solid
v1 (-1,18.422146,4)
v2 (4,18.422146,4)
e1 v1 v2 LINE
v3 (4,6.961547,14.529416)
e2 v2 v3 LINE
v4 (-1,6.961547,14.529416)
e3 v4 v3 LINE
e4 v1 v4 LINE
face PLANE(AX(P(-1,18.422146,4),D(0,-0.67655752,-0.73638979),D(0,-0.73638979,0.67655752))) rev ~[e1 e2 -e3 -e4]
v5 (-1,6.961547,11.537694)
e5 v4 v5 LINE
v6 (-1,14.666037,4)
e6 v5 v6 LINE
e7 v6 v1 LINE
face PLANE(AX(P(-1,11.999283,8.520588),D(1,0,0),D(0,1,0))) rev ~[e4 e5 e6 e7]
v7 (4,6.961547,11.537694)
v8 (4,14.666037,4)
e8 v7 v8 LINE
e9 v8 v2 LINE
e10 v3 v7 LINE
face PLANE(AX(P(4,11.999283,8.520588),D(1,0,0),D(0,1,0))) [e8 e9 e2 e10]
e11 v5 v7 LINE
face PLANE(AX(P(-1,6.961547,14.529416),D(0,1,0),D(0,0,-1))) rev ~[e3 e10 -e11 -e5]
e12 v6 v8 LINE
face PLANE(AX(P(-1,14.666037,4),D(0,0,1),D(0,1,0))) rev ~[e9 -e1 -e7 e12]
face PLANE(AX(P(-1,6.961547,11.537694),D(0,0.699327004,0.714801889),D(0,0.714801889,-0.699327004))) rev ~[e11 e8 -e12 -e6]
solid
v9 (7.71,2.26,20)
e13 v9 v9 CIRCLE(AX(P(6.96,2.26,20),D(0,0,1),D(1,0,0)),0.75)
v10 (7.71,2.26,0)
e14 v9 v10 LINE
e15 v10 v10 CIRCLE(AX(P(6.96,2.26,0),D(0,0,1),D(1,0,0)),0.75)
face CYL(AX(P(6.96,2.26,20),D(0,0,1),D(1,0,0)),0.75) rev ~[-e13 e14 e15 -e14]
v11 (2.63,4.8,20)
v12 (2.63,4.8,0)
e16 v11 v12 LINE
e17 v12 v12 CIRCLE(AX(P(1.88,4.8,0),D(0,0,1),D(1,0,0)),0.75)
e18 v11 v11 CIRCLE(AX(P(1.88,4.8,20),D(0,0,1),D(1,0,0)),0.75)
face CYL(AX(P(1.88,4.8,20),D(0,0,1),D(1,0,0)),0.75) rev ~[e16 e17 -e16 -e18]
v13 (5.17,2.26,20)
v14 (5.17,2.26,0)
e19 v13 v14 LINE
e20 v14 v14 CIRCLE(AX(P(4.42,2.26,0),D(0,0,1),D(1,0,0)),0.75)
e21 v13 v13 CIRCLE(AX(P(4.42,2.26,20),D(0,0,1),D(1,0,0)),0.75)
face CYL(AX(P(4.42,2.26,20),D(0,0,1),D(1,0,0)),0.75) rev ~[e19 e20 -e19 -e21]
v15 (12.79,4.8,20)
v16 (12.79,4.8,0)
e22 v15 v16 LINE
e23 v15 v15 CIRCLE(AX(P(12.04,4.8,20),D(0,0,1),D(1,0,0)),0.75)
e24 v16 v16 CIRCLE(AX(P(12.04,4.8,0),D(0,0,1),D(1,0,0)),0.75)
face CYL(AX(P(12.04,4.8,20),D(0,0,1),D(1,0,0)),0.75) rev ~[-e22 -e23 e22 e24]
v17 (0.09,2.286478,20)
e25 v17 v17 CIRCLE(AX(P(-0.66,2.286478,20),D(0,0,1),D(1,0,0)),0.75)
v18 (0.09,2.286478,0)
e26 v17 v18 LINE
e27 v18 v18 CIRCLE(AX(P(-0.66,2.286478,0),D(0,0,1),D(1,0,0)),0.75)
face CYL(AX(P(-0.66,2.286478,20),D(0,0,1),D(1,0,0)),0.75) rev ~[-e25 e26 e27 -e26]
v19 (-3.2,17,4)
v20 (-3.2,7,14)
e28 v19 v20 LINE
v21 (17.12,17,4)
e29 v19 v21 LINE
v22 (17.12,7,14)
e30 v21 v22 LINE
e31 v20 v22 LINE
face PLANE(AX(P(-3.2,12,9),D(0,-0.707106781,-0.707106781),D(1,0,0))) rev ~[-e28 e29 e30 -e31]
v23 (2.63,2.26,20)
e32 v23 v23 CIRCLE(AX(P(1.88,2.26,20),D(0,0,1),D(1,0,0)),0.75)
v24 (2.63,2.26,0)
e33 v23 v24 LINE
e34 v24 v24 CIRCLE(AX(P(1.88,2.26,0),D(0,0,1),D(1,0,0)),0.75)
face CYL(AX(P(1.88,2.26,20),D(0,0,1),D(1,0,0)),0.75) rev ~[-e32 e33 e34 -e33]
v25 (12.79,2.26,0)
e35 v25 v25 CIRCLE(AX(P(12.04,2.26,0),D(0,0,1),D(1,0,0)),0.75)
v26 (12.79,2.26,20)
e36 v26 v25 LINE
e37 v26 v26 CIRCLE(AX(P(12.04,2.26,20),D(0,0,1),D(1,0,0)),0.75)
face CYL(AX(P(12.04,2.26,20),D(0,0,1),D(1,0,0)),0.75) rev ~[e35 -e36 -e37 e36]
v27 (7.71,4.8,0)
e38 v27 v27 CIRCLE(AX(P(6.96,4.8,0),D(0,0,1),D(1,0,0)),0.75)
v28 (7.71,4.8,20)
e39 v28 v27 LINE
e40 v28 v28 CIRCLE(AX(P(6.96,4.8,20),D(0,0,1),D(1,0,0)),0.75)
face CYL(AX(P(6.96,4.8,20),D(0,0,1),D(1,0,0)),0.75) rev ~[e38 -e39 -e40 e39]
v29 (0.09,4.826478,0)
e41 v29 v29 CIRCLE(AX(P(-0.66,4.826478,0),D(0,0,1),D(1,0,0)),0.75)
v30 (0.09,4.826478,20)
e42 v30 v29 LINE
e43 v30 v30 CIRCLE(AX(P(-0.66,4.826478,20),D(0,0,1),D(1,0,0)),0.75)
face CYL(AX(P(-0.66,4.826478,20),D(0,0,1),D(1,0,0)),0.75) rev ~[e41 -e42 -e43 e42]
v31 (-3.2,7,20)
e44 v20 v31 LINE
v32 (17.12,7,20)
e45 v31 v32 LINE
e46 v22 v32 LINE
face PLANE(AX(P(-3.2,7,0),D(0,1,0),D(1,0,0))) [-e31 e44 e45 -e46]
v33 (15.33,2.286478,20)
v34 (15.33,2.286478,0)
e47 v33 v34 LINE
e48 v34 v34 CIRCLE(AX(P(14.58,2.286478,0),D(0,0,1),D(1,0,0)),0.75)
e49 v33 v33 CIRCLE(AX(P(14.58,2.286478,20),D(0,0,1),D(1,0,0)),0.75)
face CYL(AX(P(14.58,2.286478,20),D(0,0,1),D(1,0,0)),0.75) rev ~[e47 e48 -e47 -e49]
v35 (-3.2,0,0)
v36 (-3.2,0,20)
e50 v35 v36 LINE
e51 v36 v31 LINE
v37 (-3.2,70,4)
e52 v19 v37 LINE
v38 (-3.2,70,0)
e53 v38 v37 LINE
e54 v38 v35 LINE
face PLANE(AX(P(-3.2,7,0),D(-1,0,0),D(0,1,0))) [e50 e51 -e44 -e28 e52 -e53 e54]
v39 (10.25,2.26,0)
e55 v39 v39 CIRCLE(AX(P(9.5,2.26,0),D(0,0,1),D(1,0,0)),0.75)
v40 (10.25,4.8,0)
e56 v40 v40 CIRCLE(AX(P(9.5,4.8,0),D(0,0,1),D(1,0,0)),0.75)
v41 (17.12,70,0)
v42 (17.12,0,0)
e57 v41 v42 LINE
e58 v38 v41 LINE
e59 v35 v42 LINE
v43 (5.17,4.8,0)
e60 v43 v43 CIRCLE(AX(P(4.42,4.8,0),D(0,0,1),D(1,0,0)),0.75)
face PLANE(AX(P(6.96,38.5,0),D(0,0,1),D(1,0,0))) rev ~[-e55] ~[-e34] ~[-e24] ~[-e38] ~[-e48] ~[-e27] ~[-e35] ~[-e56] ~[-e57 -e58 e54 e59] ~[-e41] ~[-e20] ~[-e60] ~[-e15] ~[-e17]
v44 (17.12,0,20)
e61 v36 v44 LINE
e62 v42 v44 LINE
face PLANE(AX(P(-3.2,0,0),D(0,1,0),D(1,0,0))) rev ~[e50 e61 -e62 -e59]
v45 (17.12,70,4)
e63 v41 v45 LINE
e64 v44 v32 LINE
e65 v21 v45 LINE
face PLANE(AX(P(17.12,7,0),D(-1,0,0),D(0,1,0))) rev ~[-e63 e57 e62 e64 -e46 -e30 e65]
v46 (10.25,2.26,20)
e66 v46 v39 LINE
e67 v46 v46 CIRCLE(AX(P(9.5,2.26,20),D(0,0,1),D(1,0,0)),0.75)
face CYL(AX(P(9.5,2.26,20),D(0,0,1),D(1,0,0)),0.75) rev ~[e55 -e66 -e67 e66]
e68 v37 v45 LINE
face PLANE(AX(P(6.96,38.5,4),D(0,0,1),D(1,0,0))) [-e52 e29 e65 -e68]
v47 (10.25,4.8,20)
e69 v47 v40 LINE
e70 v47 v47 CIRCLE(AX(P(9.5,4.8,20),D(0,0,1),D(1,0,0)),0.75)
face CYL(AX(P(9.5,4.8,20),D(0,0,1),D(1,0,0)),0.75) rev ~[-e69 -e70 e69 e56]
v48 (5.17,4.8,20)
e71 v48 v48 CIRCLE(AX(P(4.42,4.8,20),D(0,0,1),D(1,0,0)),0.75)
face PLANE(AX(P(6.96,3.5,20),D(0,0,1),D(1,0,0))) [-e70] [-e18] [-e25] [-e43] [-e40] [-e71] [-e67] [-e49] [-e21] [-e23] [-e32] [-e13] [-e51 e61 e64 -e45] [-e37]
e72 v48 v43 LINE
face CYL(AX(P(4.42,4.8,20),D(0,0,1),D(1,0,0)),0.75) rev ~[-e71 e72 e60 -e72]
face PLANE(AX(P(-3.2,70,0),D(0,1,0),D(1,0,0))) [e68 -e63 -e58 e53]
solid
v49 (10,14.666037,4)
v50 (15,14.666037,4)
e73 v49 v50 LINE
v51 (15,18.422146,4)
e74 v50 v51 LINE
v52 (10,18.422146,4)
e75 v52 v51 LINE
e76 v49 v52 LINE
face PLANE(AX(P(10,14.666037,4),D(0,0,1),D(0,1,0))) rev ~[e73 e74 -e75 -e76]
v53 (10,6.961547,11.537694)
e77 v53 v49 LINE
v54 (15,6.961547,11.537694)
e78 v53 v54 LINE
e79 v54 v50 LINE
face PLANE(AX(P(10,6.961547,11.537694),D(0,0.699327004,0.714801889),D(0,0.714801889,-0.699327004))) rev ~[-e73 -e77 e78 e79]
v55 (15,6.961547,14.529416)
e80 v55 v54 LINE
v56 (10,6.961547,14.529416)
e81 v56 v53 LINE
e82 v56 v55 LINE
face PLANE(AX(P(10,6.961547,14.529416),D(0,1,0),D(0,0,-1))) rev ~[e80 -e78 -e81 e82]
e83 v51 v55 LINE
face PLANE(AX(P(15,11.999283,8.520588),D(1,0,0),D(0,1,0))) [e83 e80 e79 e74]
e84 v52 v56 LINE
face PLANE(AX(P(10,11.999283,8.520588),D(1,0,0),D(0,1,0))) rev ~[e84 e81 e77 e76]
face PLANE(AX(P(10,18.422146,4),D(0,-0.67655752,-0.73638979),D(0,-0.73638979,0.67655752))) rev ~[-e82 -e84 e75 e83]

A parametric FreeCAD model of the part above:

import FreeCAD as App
import Part
import Sketcher
from FreeCAD import Vector
Q = App.Units.Quantity


def edges_at(feature, points):
    """Names of the edges that pass closest to the given points."""
    edges = feature.Shape.Edges
    near = lambda p: min(range(len(edges)), key=lambda i: edges[i].distToShape(Part.Vertex(*p))[0])
    return sorted({f"Edge{near(p) + 1}" for p in points})

doc = App.newDocument("Part")
body = doc.addObject("PartDesign::Body", "Body")

sketch1 = body.newObject("Sketcher::SketchObject", "Sketch")
sketch1.AttachmentSupport = (doc.getObject("YZ_Plane"), [""])
sketch1.MapMode = "FlatFace"
sketch1.AttachmentOffset = App.Placement(Vector(0, 0, -1), App.Rotation())
sketch1.addGeometry(Part.LineSegment(Vector(7, 14.5, 0), Vector(7, 11.5, 0)), False)
sketch1.addGeometry(Part.LineSegment(Vector(7, 11.5, 0), Vector(14.7, 4, 0)), False)
sketch1.addGeometry(Part.LineSegment(Vector(14.7, 4, 0), Vector(18.4, 4, 0)), False)
sketch1.addGeometry(Part.LineSegment(Vector(18.4, 4, 0), Vector(7, 14.5, 0)), False)
sketch1.addConstraint(Sketcher.Constraint("Coincident", 0, 2, 1, 1))
sketch1.addConstraint(Sketcher.Constraint("Coincident", 1, 2, 2, 1))
sketch1.addConstraint(Sketcher.Constraint("Coincident", 2, 2, 3, 1))
sketch1.addConstraint(Sketcher.Constraint("Coincident", 3, 2, 0, 1))
sketch1.addConstraint(Sketcher.Constraint("Vertical", 0))
sketch1.addConstraint(Sketcher.Constraint("Horizontal", 2))
sketch1.addConstraint(Sketcher.Constraint("DistanceY", -1, 1, 1, 2, Q("4 mm")))
sketch1.addConstraint(Sketcher.Constraint("DistanceX", 2, 1, 2, 2, Q("3.756109 mm")))
sketch1.addConstraint(Sketcher.Constraint("DistanceY", 0, 2, 0, 1, Q("2.991722 mm")))
sketch1.addConstraint(Sketcher.Constraint("DistanceX", 0, 2, 2, 2, Q("11.460599 mm")))
sketch1.addConstraint(Sketcher.Constraint("Distance", 1, Q("10.778497 mm")))
sketch1.addConstraint(Sketcher.Constraint("DistanceX", -1, 1, 0, 2, Q("6.961547 mm")))
pad1 = body.newObject("PartDesign::Pad", "Pad")
pad1.Profile = sketch1
pad1.Length = 5
body2 = doc.addObject("PartDesign::Body", "Body001")

sketch2 = body2.newObject("Sketcher::SketchObject", "Sketch001")
sketch2.AttachmentSupport = (doc.getObject("YZ_Plane001"), [""])
sketch2.MapMode = "FlatFace"
sketch2.AttachmentOffset = App.Placement(Vector(0, 0, 10), App.Rotation())
sketch2.addGeometry(Part.LineSegment(Vector(7, 14.5, 0), Vector(7, 11.5, 0)), False)
sketch2.addGeometry(Part.LineSegment(Vector(7, 11.5, 0), Vector(14.7, 4, 0)), False)
sketch2.addGeometry(Part.LineSegment(Vector(14.7, 4, 0), Vector(18.4, 4, 0)), False)
sketch2.addGeometry(Part.LineSegment(Vector(18.4, 4, 0), Vector(7, 14.5, 0)), False)
sketch2.addConstraint(Sketcher.Constraint("Coincident", 0, 2, 1, 1))
sketch2.addConstraint(Sketcher.Constraint("Coincident", 1, 2, 2, 1))
sketch2.addConstraint(Sketcher.Constraint("Coincident", 2, 2, 3, 1))
sketch2.addConstraint(Sketcher.Constraint("Coincident", 3, 2, 0, 1))
sketch2.addConstraint(Sketcher.Constraint("Vertical", 0))
sketch2.addConstraint(Sketcher.Constraint("Horizontal", 2))
sketch2.addConstraint(Sketcher.Constraint("DistanceY", -1, 1, 1, 2, Q("4 mm")))
sketch2.addConstraint(Sketcher.Constraint("DistanceX", 2, 1, 2, 2, Q("3.756109 mm")))
sketch2.addConstraint(Sketcher.Constraint("DistanceY", 0, 2, 0, 1, Q("2.991722 mm")))
sketch2.addConstraint(Sketcher.Constraint("DistanceX", 0, 2, 2, 2, Q("11.460599 mm")))
sketch2.addConstraint(Sketcher.Constraint("Distance", 1, Q("10.778497 mm")))
sketch2.addConstraint(Sketcher.Constraint("DistanceX", -1, 1, 0, 2, Q("6.961547 mm")))
pad2 = body2.newObject("PartDesign::Pad", "Pad001")
pad2.Profile = sketch2
pad2.Length = 5
body3 = doc.addObject("PartDesign::Body", "Body002")

sketch3 = body3.newObject("Sketcher::SketchObject", "Sketch002")
sketch3.AttachmentSupport = (doc.getObject("XY_Plane002"), [""])
sketch3.MapMode = "FlatFace"
sketch3.addGeometry(Part.LineSegment(Vector(-3, 70, 0), Vector(-3, 7, 0)), False)
sketch3.addGeometry(Part.LineSegment(Vector(-3, 7, 0), Vector(17, 7, 0)), False)
sketch3.addGeometry(Part.LineSegment(Vector(17, 7, 0), Vector(17, 70, 0)), False)
sketch3.addGeometry(Part.LineSegment(Vector(17, 70, 0), Vector(-3, 70, 0)), False)
sketch3.addConstraint(Sketcher.Constraint("Coincident", 0, 2, 1, 1))
sketch3.addConstraint(Sketcher.Constraint("Coincident", 1, 2, 2, 1))
sketch3.addConstraint(Sketcher.Constraint("Coincident", 2, 2, 3, 1))
sketch3.addConstraint(Sketcher.Constraint("Coincident", 3, 2, 0, 1))
sketch3.addConstraint(Sketcher.Constraint("Vertical", 0))
sketch3.addConstraint(Sketcher.Constraint("Horizontal", 1))
sketch3.addConstraint(Sketcher.Constraint("Vertical", 2))
sketch3.addConstraint(Sketcher.Constraint("Horizontal", 3))
sketch3.addConstraint(Sketcher.Constraint("DistanceY", 0, 2, 0, 1, Q("63 mm")))
sketch3.addConstraint(Sketcher.Constraint("DistanceY", -1, 1, 0, 2, Q("7 mm")))
sketch3.addConstraint(Sketcher.Constraint("DistanceX", 1, 1, 1, 2, Q("20.32 mm")))
sketch3.addConstraint(Sketcher.Constraint("DistanceX", 0, 2, -1, 1, Q("3.2 mm")))
pad3 = body3.newObject("PartDesign::Pad", "Pad002")
pad3.Profile = sketch3
pad3.Length = 4
body4 = doc.addObject("PartDesign::Body", "Body003")

sketch4 = body4.newObject("Sketcher::SketchObject", "Sketch003")
sketch4.AttachmentSupport = (doc.getObject("XY_Plane003"), [""])
sketch4.MapMode = "FlatFace"
sketch4.addGeometry(Part.LineSegment(Vector(-3, 7, 0), Vector(-3, 0, 0)), False)
sketch4.addGeometry(Part.LineSegment(Vector(-3, 0, 0), Vector(17, 0, 0)), False)
sketch4.addGeometry(Part.LineSegment(Vector(17, 0, 0), Vector(17, 7, 0)), False)
sketch4.addGeometry(Part.LineSegment(Vector(17, 7, 0), Vector(-3, 7, 0)), False)
sketch4.addConstraint(Sketcher.Constraint("Coincident", 0, 2, 1, 1))
sketch4.addConstraint(Sketcher.Constraint("Coincident", 1, 2, 2, 1))
sketch4.addConstraint(Sketcher.Constraint("Coincident", 2, 2, 3, 1))
sketch4.addConstraint(Sketcher.Constraint("Coincident", 3, 2, 0, 1))
sketch4.addConstraint(Sketcher.Constraint("Vertical", 0))
sketch4.addConstraint(Sketcher.Constraint("Horizontal", 1))
sketch4.addConstraint(Sketcher.Constraint("Vertical", 2))
sketch4.addConstraint(Sketcher.Constraint("Horizontal", 3))
sketch4.addConstraint(Sketcher.Constraint("PointOnObject", 0, 2, -1))
sketch4.addConstraint(Sketcher.Constraint("DistanceY", 0, 2, 0, 1, Q("7 mm")))
sketch4.addConstraint(Sketcher.Constraint("DistanceX", 1, 1, 1, 2, Q("20.32 mm")))
sketch4.addConstraint(Sketcher.Constraint("DistanceX", 0, 2, -1, 1, Q("3.2 mm")))
pad4 = body4.newObject("PartDesign::Pad", "Pad003")
pad4.Profile = sketch4
pad4.Length = 20

sketch5 = body4.newObject("Sketcher::SketchObject", "Sketch004")
sketch5.AttachmentSupport = (doc.getObject("XY_Plane003"), [""])
sketch5.MapMode = "FlatFace"
sketch5.AttachmentOffset = App.Placement(Vector(0, 0, 20), App.Rotation())
sketch5.addGeometry(Part.Circle(Vector(1.9, 2.3, 0), Vector(0, 0, 1), 0.8), False)
sketch5.addGeometry(Part.Circle(Vector(4.4, 2.3, 0), Vector(0, 0, 1), 0.8), False)
sketch5.addGeometry(Part.Circle(Vector(7, 2.3, 0), Vector(0, 0, 1), 0.8), False)
sketch5.addGeometry(Part.Circle(Vector(9.5, 2.3, 0), Vector(0, 0, 1), 0.8), False)
sketch5.addGeometry(Part.Circle(Vector(12, 2.3, 0), Vector(0, 0, 1), 0.8), False)
sketch5.addGeometry(Part.Circle(Vector(1.9, 4.8, 0), Vector(0, 0, 1), 0.8), False)
sketch5.addGeometry(Part.Circle(Vector(4.4, 4.8, 0), Vector(0, 0, 1), 0.8), False)
sketch5.addGeometry(Part.Circle(Vector(7, 4.8, 0), Vector(0, 0, 1), 0.8), False)
sketch5.addGeometry(Part.Circle(Vector(9.5, 4.8, 0), Vector(0, 0, 1), 0.8), False)
sketch5.addGeometry(Part.Circle(Vector(12, 4.8, 0), Vector(0, 0, 1), 0.8), False)
sketch5.addGeometry(Part.Circle(Vector(-0.7, 2.3, 0), Vector(0, 0, 1), 0.8), False)
sketch5.addGeometry(Part.Circle(Vector(-0.7, 4.8, 0), Vector(0, 0, 1), 0.8), False)
sketch5.addGeometry(Part.Circle(Vector(14.6, 2.3, 0), Vector(0, 0, 1), 0.8), False)
sketch5.addConstraint(Sketcher.Constraint("Equal", 0, 1))
sketch5.addConstraint(Sketcher.Constraint("Equal", 1, 2))
sketch5.addConstraint(Sketcher.Constraint("Equal", 2, 3))
sketch5.addConstraint(Sketcher.Constraint("Equal", 3, 4))
sketch5.addConstraint(Sketcher.Constraint("Equal", 4, 5))
sketch5.addConstraint(Sketcher.Constraint("Equal", 5, 6))
sketch5.addConstraint(Sketcher.Constraint("Equal", 6, 7))
sketch5.addConstraint(Sketcher.Constraint("Equal", 7, 8))
sketch5.addConstraint(Sketcher.Constraint("Equal", 8, 9))
sketch5.addConstraint(Sketcher.Constraint("Equal", 9, 10))
sketch5.addConstraint(Sketcher.Constraint("Equal", 10, 11))
sketch5.addConstraint(Sketcher.Constraint("Equal", 11, 12))
sketch5.addConstraint(Sketcher.Constraint("Horizontal", 0, 3, 1, 3))
sketch5.addConstraint(Sketcher.Constraint("Horizontal", 1, 3, 2, 3))
sketch5.addConstraint(Sketcher.Constraint("Horizontal", 2, 3, 3, 3))
sketch5.addConstraint(Sketcher.Constraint("Horizontal", 3, 3, 4, 3))
sketch5.addConstraint(Sketcher.Constraint("Horizontal", 5, 3, 6, 3))
sketch5.addConstraint(Sketcher.Constraint("Horizontal", 6, 3, 7, 3))
sketch5.addConstraint(Sketcher.Constraint("Horizontal", 7, 3, 8, 3))
sketch5.addConstraint(Sketcher.Constraint("Horizontal", 8, 3, 9, 3))
sketch5.addConstraint(Sketcher.Constraint("Horizontal", 10, 3, 12, 3))
sketch5.addConstraint(Sketcher.Constraint("Vertical", 0, 3, 5, 3))
sketch5.addConstraint(Sketcher.Constraint("Vertical", 1, 3, 6, 3))
sketch5.addConstraint(Sketcher.Constraint("Vertical", 2, 3, 7, 3))
sketch5.addConstraint(Sketcher.Constraint("Vertical", 3, 3, 8, 3))
sketch5.addConstraint(Sketcher.Constraint("Vertical", 4, 3, 9, 3))
sketch5.addConstraint(Sketcher.Constraint("Vertical", 10, 3, 11, 3))
sketch5.addConstraint(Sketcher.Constraint("Diameter", 0, Q("1.5 mm")))
sketch5.addConstraint(Sketcher.Constraint("DistanceX", -1, 1, 3, 3, Q("9.5 mm")))
sketch5.addConstraint(Sketcher.Constraint("DistanceY", -1, 1, 5, 3, Q("4.8 mm")))
sketch5.addConstraint(Sketcher.Constraint("DistanceX", -1, 1, 0, 3, Q("1.88 mm")))
sketch5.addConstraint(Sketcher.Constraint("DistanceY", -1, 1, 0, 3, Q("2.26 mm")))
sketch5.addConstraint(Sketcher.Constraint("DistanceX", -1, 1, 1, 3, Q("4.42 mm")))
sketch5.addConstraint(Sketcher.Constraint("DistanceX", -1, 1, 2, 3, Q("6.96 mm")))
sketch5.addConstraint(Sketcher.Constraint("DistanceX", -1, 1, 4, 3, Q("12.04 mm")))
sketch5.addConstraint(Sketcher.Constraint("DistanceX", 10, 3, -1, 1, Q("0.66 mm")))
sketch5.addConstraint(Sketcher.Constraint("DistanceX", -1, 1, 12, 3, Q("14.58 mm")))
sketch5.addConstraint(Sketcher.Constraint("DistanceY", 10, 3, 11, 3, Q("2.54 mm")))
sketch5.addConstraint(Sketcher.Constraint("DistanceY", 0, 3, 10, 3, Q("0.026478 mm")))
pocket1 = body4.newObject("PartDesign::Pocket", "Pocket")
pocket1.Profile = sketch5
pocket1.Length = 20
doc.recompute()

boolean = body4.newObject("PartDesign::Boolean", "Boolean")
boolean.Type = "Fuse"
boolean.addObjects([body3])
doc.recompute()

chamfer = body4.newObject("PartDesign::Chamfer", "Chamfer")
chamfer.Base = (boolean, edges_at(boolean, [(6.96, 7, 4)]))
chamfer.Size = 10

doc.recompute()
